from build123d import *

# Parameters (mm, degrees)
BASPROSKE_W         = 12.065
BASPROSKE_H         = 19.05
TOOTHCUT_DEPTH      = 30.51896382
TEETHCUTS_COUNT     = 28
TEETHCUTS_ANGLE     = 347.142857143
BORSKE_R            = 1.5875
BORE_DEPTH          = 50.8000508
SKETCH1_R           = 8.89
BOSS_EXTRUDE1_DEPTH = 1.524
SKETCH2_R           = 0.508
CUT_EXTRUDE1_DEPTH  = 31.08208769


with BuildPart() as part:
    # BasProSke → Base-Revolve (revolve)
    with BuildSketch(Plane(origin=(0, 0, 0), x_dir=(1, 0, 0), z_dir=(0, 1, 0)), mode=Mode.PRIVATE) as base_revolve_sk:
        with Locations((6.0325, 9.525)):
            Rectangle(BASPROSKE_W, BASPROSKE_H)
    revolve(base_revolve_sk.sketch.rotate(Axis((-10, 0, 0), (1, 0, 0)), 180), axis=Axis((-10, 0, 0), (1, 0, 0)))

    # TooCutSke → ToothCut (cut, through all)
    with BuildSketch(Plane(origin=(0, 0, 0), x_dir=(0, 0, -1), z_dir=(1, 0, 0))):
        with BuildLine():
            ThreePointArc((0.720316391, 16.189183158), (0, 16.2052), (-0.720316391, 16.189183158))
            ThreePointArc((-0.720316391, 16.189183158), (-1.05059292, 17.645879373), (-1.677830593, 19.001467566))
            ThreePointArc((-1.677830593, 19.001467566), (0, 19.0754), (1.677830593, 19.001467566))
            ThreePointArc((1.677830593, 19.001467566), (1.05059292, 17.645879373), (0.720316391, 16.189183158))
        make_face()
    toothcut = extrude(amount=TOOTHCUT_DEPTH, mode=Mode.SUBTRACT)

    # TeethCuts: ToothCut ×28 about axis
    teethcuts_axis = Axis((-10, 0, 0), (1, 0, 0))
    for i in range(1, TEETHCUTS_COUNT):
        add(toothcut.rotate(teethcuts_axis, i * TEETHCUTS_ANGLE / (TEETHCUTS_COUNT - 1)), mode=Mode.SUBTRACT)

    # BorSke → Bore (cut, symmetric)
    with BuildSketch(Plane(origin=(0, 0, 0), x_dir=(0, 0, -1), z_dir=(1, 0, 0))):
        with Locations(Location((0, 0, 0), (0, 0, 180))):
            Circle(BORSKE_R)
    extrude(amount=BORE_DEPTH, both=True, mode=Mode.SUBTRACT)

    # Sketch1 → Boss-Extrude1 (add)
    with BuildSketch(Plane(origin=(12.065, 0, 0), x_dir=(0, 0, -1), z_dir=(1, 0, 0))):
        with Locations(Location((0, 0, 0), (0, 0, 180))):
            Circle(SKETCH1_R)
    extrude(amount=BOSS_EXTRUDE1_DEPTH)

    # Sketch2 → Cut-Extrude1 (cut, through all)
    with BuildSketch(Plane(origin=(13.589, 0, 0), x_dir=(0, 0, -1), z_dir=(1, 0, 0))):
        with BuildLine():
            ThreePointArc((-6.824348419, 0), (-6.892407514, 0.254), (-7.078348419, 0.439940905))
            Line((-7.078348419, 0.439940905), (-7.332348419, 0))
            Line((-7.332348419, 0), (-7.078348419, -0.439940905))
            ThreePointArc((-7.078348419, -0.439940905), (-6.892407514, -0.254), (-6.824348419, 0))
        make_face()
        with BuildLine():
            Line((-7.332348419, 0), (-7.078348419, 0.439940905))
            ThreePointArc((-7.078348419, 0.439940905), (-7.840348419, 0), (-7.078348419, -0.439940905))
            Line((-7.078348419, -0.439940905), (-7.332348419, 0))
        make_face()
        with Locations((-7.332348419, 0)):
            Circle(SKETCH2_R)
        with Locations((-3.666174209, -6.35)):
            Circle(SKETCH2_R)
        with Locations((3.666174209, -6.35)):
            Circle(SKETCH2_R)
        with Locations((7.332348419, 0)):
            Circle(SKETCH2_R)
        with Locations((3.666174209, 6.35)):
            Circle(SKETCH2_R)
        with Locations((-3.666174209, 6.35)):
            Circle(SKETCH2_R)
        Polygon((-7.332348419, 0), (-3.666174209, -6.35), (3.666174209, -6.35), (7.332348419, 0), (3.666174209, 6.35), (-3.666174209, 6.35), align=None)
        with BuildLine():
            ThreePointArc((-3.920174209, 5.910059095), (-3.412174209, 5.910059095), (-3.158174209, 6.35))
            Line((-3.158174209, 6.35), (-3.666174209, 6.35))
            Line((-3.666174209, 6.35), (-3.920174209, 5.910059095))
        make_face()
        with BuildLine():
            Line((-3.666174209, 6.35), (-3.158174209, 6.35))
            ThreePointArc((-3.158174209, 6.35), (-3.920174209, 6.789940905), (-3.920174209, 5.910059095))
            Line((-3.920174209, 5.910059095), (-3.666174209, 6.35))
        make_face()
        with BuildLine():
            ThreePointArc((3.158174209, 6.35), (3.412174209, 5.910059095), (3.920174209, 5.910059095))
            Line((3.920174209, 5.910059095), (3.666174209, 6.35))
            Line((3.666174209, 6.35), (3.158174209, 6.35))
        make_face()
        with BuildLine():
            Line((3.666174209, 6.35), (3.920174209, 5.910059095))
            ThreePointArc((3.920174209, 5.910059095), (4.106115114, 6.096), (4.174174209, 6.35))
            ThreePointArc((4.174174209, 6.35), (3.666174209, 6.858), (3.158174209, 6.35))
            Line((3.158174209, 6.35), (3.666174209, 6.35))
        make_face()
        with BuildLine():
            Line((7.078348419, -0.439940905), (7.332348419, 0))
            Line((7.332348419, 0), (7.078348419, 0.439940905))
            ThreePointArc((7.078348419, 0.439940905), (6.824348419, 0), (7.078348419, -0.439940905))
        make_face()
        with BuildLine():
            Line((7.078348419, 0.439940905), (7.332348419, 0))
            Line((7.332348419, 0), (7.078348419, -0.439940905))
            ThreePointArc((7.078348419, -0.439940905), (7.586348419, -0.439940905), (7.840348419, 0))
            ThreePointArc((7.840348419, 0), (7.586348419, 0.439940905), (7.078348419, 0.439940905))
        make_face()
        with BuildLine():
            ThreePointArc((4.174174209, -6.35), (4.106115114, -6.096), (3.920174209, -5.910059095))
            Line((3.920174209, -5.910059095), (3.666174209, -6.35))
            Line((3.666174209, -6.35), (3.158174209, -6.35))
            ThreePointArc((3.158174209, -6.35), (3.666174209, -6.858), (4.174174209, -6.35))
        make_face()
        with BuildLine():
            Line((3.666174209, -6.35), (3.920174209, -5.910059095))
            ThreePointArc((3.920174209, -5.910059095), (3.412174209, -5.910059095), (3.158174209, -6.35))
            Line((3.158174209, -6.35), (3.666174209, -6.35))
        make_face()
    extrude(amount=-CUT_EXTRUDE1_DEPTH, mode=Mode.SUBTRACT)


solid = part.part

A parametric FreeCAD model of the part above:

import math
import FreeCAD as App
import Part
import Sketcher

V = App.Vector
Q = App.Units.Quantity


def add_polygon(sketch, points):
    """Adds a closed chain of lines whose ends are joined by coincident constraints."""
    first, n = sketch.GeometryCount, len(points)
    for a, b in zip(points, points[1:] + points[:1]):
        sketch.addGeometry(Part.LineSegment(App.Vector(*a, 0), App.Vector(*b, 0)), False)
    for i in range(n):
        sketch.addConstraint(Sketcher.Constraint("Coincident", first + i, 2, first + (i + 1) % n, 1))

doc = App.newDocument("Part")
body = doc.addObject("PartDesign::Body", "Body")

# Sketch on XZ plane
sketch1 = body.newObject("Sketcher::SketchObject", "Sketch")
sketch1.AttachmentSupport = (doc.getObject("XZ_Plane"), [""])
sketch1.MapMode = "FlatFace"
add_polygon(sketch1, [(0, -19), (0, 0), (12, 0), (12, -19)])  # lines 0-3
sketch1.addConstraint(Sketcher.Constraint("Vertical", 0))
sketch1.addConstraint(Sketcher.Constraint("Horizontal", 1))
sketch1.addConstraint(Sketcher.Constraint("Vertical", 2))
sketch1.addConstraint(Sketcher.Constraint("Horizontal", 3))
sketch1.addConstraint(Sketcher.Constraint("Coincident", 0, 2, -1, 1))
sketch1.addConstraint(Sketcher.Constraint("DistanceY", 0, 1, 0, 2, Q("0.75 in")))
sketch1.addConstraint(Sketcher.Constraint("DistanceX", 1, 1, 1, 2, Q("0.475 in")))
revolution = body.newObject("PartDesign::Revolution", "Revolution")
revolution.Profile = sketch1
revolution.ReferenceAxis = (sketch1, ["H_Axis"])
revolution.Angle = 360

# Sketch on YZ plane
sketch2 = body.newObject("Sketcher::SketchObject", "Sketch001")
sketch2.AttachmentSupport = (doc.getObject("YZ_Plane"), [""])
sketch2.MapMode = "FlatFace"
sketch2.addGeometry(Part.ArcOfCircle(Part.Circle(V(0, 0, 0), V(0, 0, 1), 16.2), math.radians(-2.55), math.radians(2.55)), False)
sketch2.addGeometry(Part.ArcOfCircle(Part.Circle(V(15.4, -7.8, 0), V(0, 0, 1), 7.1), math.radians(59), math.radians(83)), False)
sketch2.addGeometry(Part.ArcOfCircle(Part.Circle(V(0, 0, 0), V(0, 0, 1), 19.1), math.radians(-5.05), math.radians(5.05)), False)
sketch2.addGeometry(Part.ArcOfCircle(Part.Circle(V(15.4, 7.8, 0), V(0, 0, 1), 7.1), math.radians(-83), math.radians(-59)), False)
sketch2.addConstraint(Sketcher.Constraint("Coincident", 0, 1, 1, 2))
sketch2.addConstraint(Sketcher.Constraint("Coincident", 1, 1, 2, 1))
sketch2.addConstraint(Sketcher.Constraint("Coincident", 2, 2, 3, 2))
sketch2.addConstraint(Sketcher.Constraint("Coincident", 3, 1, 0, 2))
sketch2.addConstraint(Sketcher.Constraint("Coincident", 0, 3, -1, 1))
sketch2.addConstraint(Sketcher.Constraint("Coincident", 2, 3, -1, 1))
sketch2.addConstraint(Sketcher.Constraint("Equal", 1, 3))
sketch2.addConstraint(Sketcher.Constraint("Symmetric", 1, 3, 3, 3, -1))
sketch2.addConstraint(Sketcher.Constraint("Radius", 1, Q("0.28 in")))
sketch2.addConstraint(Sketcher.Constraint("Radius", 0, Q("0.638 in")))
sketch2.addConstraint(Sketcher.Constraint("Radius", 2, Q("0.751 in")))
sketch2.addConstraint(Sketcher.Constraint("DistanceY", 1, 1, -1, 1, 1.677831))
sketch2.addConstraint(Sketcher.Constraint("DistanceY", 1, 3, 3, 3, 15.566128))
pocket1 = body.newObject("PartDesign::Pocket", "Pocket")
pocket1.Profile = sketch2
pocket1.Type = "ThroughAll"
pocket1.Reversed = True
doc.recompute()

polarpattern = body.newObject("PartDesign::PolarPattern", "PolarPattern")
polarpattern.Originals = [pocket1]
polarpattern.Axis = (doc.getObject("X_Axis"), [""])
polarpattern.Angle = 360
polarpattern.Occurrences = 28
body.Tip = polarpattern

# Sketch on YZ plane
sketch3 = body.newObject("Sketcher::SketchObject", "Sketch002")
sketch3.AttachmentSupport = (doc.getObject("YZ_Plane"), [""])
sketch3.MapMode = "FlatFace"
sketch3.addGeometry(Part.Circle(V(0, 0, 0), V(0, 0, 1), 1.6), False)
sketch3.addConstraint(Sketcher.Constraint("Coincident", 0, 3, -1, 1))
sketch3.addConstraint(Sketcher.Constraint("Diameter", 0, Q("0.125 in")))
pocket2 = body.newObject("PartDesign::Pocket", "Pocket001")
pocket2.Profile = sketch3
pocket2.Length = 101.600102
pocket2.Midplane = True

# Sketch on YZ plane
sketch4 = body.newObject("Sketcher::SketchObject", "Sketch003")
sketch4.AttachmentSupport = (doc.getObject("YZ_Plane"), [""])
sketch4.MapMode = "FlatFace"
sketch4.AttachmentOffset = App.Placement(V(0, 0, 0.475 * 25.4), App.Rotation())
sketch4.addGeometry(Part.Circle(V(0, 0, 0), V(0, 0, 1), 9), False)
sketch4.addConstraint(Sketcher.Constraint("Coincident", 0, 3, -1, 1))
sketch4.addConstraint(Sketcher.Constraint("Diameter", 0, Q("0.7 in")))
pad1 = body.newObject("PartDesign::Pad", "Pad")
pad1.Profile = sketch4
pad1.Length = Q("0.06 in")

# Sketch on YZ plane
sketch5 = body.newObject("Sketcher::SketchObject", "Sketch004")
sketch5.AttachmentSupport = (doc.getObject("YZ_Plane"), [""])
sketch5.MapMode = "FlatFace"
sketch5.AttachmentOffset = App.Placement(V(0, 0, 0.535 * 25.4), App.Rotation())
sketch5.addGeometry(Part.LineSegment(V(-5.9, -3.9, 0), V(-0.4, -7.1, 0)), False)
sketch5.addGeometry(Part.ArcOfCircle(Part.Circle(V(0, -7.3, 0), V(0, 0, 1), 0.5), math.radians(150), math.radians(390)), False)
sketch5.addGeometry(Part.LineSegment(V(0.4, -7.1, 0), V(5.9, -3.9, 0)), False)
sketch5.addGeometry(Part.ArcOfCircle(Part.Circle(V(6.3, -3.7, 0), V(0, 0, 1), 0.5), math.radians(-150), math.radians(90)), False)
sketch5.addGeometry(Part.LineSegment(V(6.3, -3.2, 0), V(6.3, 3.2, 0)), False)
sketch5.addGeometry(Part.ArcOfCircle(Part.Circle(V(6.3, 3.7, 0), V(0, 0, 1), 0.5), math.radians(-90), math.radians(150)), False)
sketch5.addGeometry(Part.LineSegment(V(5.9, 3.9, 0), V(0.4, 7.1, 0)), False)
sketch5.addGeometry(Part.ArcOfCircle(Part.Circle(V(0, 7.3, 0), V(0, 0, 1), 0.5), math.radians(-30), math.radians(210)), False)
sketch5.addGeometry(Part.LineSegment(V(-0.4, 7.1, 0), V(-5.9, 3.9, 0)), False)
sketch5.addGeometry(Part.ArcOfCircle(Part.Circle(V(-6.3, 3.7, 0), V(0, 0, 1), 0.5), math.radians(30), math.radians(270)), False)
sketch5.addGeometry(Part.LineSegment(V(-6.3, 3.2, 0), V(-6.3, -3.2, 0)), False)
sketch5.addGeometry(Part.ArcOfCircle(Part.Circle(V(-6.3, -3.7, 0), V(0, 0, 1), 0.5), math.radians(90), math.radians(330)), False)
sketch5.addConstraint(Sketcher.Constraint("Coincident", 0, 2, 1, 1))
sketch5.addConstraint(Sketcher.Constraint("Coincident", 1, 2, 2, 1))
sketch5.addConstraint(Sketcher.Constraint("Coincident", 2, 2, 3, 1))
sketch5.addConstraint(Sketcher.Constraint("Coincident", 3, 2, 4, 1))
sketch5.addConstraint(Sketcher.Constraint("Coincident", 4, 2, 5, 1))
sketch5.addConstraint(Sketcher.Constraint("Coincident", 5, 2, 6, 1))
sketch5.addConstraint(Sketcher.Constraint("Coincident", 6, 2, 7, 1))
sketch5.addConstraint(Sketcher.Constraint("Coincident", 7, 2, 8, 1))
sketch5.addConstraint(Sketcher.Constraint("Coincident", 8, 2, 9, 1))
sketch5.addConstraint(Sketcher.Constraint("Coincident", 9, 2, 10, 1))
sketch5.addConstraint(Sketcher.Constraint("Coincident", 10, 2, 11, 1))
sketch5.addConstraint(Sketcher.Constraint("Coincident", 11, 2, 0, 1))
sketch5.addConstraint(Sketcher.Constraint("Vertical", 4))
sketch5.addConstraint(Sketcher.Constraint("Vertical", 10))
sketch5.addConstraint(Sketcher.Constraint("Equal", 1, 3))
sketch5.addConstraint(Sketcher.Constraint("Equal", 3, 5))
sketch5.addConstraint(Sketcher.Constraint("Equal", 5, 7))
sketch5.addConstraint(Sketcher.Constraint("Equal", 7, 9))
sketch5.addConstraint(Sketcher.Constraint("Equal", 9, 11))
sketch5.addConstraint(Sketcher.Constraint("Symmetric", 1, 3, 7, 3, -1, 1))
sketch5.addConstraint(Sketcher.Constraint("Symmetric", 3, 3, 9, 3, -1, 1))
sketch5.addConstraint(Sketcher.Constraint("Symmetric", 5, 3, 11, 3, -1, 1))
sketch5.addConstraint(Sketcher.Constraint("Symmetric", 5, 3, 9, 3, -2))
sketch5.addConstraint(Sketcher.Constraint("Symmetric", 0, 2, 1, 2, -2))
sketch5.addConstraint(Sketcher.Constraint("Parallel", 0, 6))
sketch5.addConstraint(Sketcher.Constraint("Parallel", 2, 8))
sketch5.addConstraint(Sketcher.Constraint("Horizontal", 6, 2, 7, 2))
sketch5.addConstraint(Sketcher.Constraint("Horizontal", 5, 2, 8, 2))
sketch5.addConstraint(Sketcher.Constraint("Vertical", 5, 3, 3, 2))
sketch5.addConstraint(Sketcher.Constraint("Vertical", 2, 2, 5, 2))
sketch5.addConstraint(Sketcher.Constraint("Vertical", 11, 3, 9, 2))
sketch5.addConstraint(Sketcher.Constraint("Radius", 1, Q("0.02 in")))
sketch5.addConstraint(Sketcher.Constraint("Angle", 0, Q("-30 deg")))
sketch5.addConstraint(Sketcher.Constraint("DistanceX", 9, 3, 5, 3, Q("0.5 in")))
sketch5.addConstraint(Sketcher.Constraint("DistanceY", 1, 3, 0, 2, Q("0.01 in")))
sketch5.addConstraint(Sketcher.Constraint("DistanceY", 2, 2, 3, 3, Q("0.01 in")))
sketch5.addConstraint(Sketcher.Constraint("DistanceY", 4, 1, 4, 2, 6.316348))
pocket3 = body.newObject("PartDesign::Pocket", "Pocket002")
pocket3.Profile = sketch5
pocket3.Type = "ThroughAll"

doc.recompute()
